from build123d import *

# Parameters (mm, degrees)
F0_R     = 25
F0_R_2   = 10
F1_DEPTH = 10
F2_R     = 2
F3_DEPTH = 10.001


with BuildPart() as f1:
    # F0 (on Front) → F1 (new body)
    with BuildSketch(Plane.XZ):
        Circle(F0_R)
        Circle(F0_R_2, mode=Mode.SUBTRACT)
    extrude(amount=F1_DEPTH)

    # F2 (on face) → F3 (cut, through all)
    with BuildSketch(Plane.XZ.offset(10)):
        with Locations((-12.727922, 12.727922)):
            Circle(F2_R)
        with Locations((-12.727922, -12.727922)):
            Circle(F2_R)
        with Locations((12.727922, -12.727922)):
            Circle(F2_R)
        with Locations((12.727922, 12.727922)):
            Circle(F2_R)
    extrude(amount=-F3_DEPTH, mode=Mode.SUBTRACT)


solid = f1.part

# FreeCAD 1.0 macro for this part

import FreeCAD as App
import Part
import Sketcher

doc = App.newDocument("Part")
body = doc.addObject("PartDesign::Body", "Body")

sketch1 = body.newObject("Sketcher::SketchObject", "Sketch")
sketch1.AttachmentSupport = (doc.getObject("XZ_Plane"), [""])
sketch1.MapMode = "FlatFace"
sketch1.addGeometry(Part.Circle(App.Vector(0, 0, 0), App.Vector(0, 0, 1), 25), False)
sketch1.addGeometry(Part.Circle(App.Vector(0, 0, 0), App.Vector(0, 0, 1), 10), False)
sketch1.addConstraint(Sketcher.Constraint("Coincident", 0, 3, -1, 1))
sketch1.addConstraint(Sketcher.Constraint("Coincident", 1, 3, -1, 1))
sketch1.addConstraint(Sketcher.Constraint("Diameter", 0, 50.0))
sketch1.addConstraint(Sketcher.Constraint("Diameter", 1, 20.0))
pad1 = body.newObject("PartDesign::Pad", "Pad")
pad1.Profile = sketch1
pad1.Length = 10

sketch2 = body.newObject("Sketcher::SketchObject", "Sketch001")
sketch2.AttachmentSupport = (doc.getObject("XZ_Plane"), [""])
sketch2.MapMode = "FlatFace"
sketch2.AttachmentOffset = App.Placement(App.Vector(0, 0, 10), App.Rotation())
sketch2.addGeometry(Part.Circle(App.Vector(-12.7, 12.7, 0), App.Vector(0, 0, 1), 2), False)
sketch2.addGeometry(Part.Circle(App.Vector(-12.7, -12.7, 0), App.Vector(0, 0, 1), 2), False)
sketch2.addGeometry(Part.Circle(App.Vector(12.7, -12.7, 0), App.Vector(0, 0, 1), 2), False)
sketch2.addGeometry(Part.Circle(App.Vector(12.7, 12.7, 0), App.Vector(0, 0, 1), 2), False)
sketch2.addConstraint(Sketcher.Constraint("Equal", 0, 1))
sketch2.addConstraint(Sketcher.Constraint("Equal", 1, 2))
sketch2.addConstraint(Sketcher.Constraint("Equal", 2, 3))
sketch2.addConstraint(Sketcher.Constraint("Symmetric", 0, 3, 2, 3, -1, 1))
sketch2.addConstraint(Sketcher.Constraint("Symmetric", 1, 3, 3, 3, -1, 1))
sketch2.addConstraint(Sketcher.Constraint("Symmetric", 1, 3, 2, 3, -2))
sketch2.addConstraint(Sketcher.Constraint("Diameter", 0, 4.0))
sketch2.addConstraint(Sketcher.Constraint("DistanceX", 0, 3, -1, 1, 12.727922))
sketch2.addConstraint(Sketcher.Constraint("DistanceY", -1, 1, 0, 3, 12.727922))
pocket1 = body.newObject("PartDesign::Pocket", "Pocket")
pocket1.Profile = sketch2
pocket1.Type = "ThroughAll"

doc.recompute()
